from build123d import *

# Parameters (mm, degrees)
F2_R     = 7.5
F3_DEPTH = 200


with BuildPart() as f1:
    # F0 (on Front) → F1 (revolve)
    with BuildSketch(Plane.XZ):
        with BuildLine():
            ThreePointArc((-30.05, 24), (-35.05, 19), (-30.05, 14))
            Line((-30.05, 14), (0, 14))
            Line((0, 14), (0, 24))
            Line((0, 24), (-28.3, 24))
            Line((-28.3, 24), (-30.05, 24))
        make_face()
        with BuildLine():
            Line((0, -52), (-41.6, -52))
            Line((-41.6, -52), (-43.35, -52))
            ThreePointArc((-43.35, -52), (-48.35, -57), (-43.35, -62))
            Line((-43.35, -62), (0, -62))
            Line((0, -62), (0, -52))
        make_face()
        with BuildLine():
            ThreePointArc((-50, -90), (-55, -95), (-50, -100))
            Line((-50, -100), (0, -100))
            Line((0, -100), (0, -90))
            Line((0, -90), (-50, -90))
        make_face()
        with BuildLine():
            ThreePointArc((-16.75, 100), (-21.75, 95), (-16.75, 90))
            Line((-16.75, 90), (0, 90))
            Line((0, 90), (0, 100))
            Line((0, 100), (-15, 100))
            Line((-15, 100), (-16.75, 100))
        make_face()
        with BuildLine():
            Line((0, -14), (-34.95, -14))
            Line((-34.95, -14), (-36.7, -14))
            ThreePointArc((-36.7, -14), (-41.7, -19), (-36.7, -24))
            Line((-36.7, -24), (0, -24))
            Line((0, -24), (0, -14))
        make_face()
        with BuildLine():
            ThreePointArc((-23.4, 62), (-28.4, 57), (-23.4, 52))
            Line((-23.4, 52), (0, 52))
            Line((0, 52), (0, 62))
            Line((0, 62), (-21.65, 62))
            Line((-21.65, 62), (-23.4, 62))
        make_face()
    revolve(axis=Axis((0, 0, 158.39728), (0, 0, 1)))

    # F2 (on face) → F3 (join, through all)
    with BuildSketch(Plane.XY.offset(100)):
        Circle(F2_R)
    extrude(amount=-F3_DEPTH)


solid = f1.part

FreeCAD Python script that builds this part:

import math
import FreeCAD as App
import Part
import Sketcher

V = App.Vector

doc = App.newDocument("Part")
body = doc.addObject("PartDesign::Body", "Body")
body.AllowCompound = True

# Sketch on XZ plane
sketch1 = doc.addObject("Sketcher::SketchObject", "Sketch")
body.addObject(sketch1)
sketch1.AttachmentSupport = (doc.XZ_Plane, [""])
sketch1.MapMode = "FlatFace"
sketch1.addGeometry([
    Part.ArcOfCircle(Part.Circle(V(-30.05, 19, 0), V(0, 0, 1), 5), math.radians(90), math.radians(270)),  # 0
    Part.LineSegment(V(-30.05, 14, 0), V(0, 14, 0)),  # 1
    Part.LineSegment(V(0, 14, 0), V(0, 24, 0)),  # 2
    Part.LineSegment(V(0, 24, 0), V(-30.05, 24, 0)),  # 3
    Part.LineSegment(V(0, -52, 0), V(-43.35, -52, 0)),  # 4
    Part.ArcOfCircle(Part.Circle(V(-43.35, -57, 0), V(0, 0, 1), 5), math.radians(90), math.radians(270)),  # 5
    Part.LineSegment(V(-43.35, -62, 0), V(0, -62, 0)),  # 6
    Part.LineSegment(V(0, -62, 0), V(0, -52, 0)),  # 7
    Part.ArcOfCircle(Part.Circle(V(-50, -95, 0), V(0, 0, 1), 5), math.radians(90), math.radians(270)),  # 8
    Part.LineSegment(V(-50, -100, 0), V(0, -100, 0)),  # 9
    Part.LineSegment(V(0, -100, 0), V(0, -90, 0)),  # 10
    Part.LineSegment(V(0, -90, 0), V(-50, -90, 0)),  # 11
    Part.ArcOfCircle(Part.Circle(V(-16.75, 95, 0), V(0, 0, 1), 5), math.radians(90), math.radians(270)),  # 12
    Part.LineSegment(V(-16.75, 90, 0), V(0, 90, 0)),  # 13
    Part.LineSegment(V(0, 90, 0), V(0, 100, 0)),  # 14
    Part.LineSegment(V(0, 100, 0), V(-16.75, 100, 0)),  # 15
    Part.LineSegment(V(0, -14, 0), V(-36.7, -14, 0)),  # 16
    Part.ArcOfCircle(Part.Circle(V(-36.7, -19, 0), V(0, 0, 1), 5), math.radians(90), math.radians(270)),  # 17
    Part.LineSegment(V(-36.7, -24, 0), V(0, -24, 0)),  # 18
    Part.LineSegment(V(0, -24, 0), V(0, -14, 0)),  # 19
    Part.ArcOfCircle(Part.Circle(V(-23.4, 57, 0), V(0, 0, 1), 5), math.radians(90), math.radians(270)),  # 20
    Part.LineSegment(V(-23.4, 52, 0), V(0, 52, 0)),  # 21
    Part.LineSegment(V(0, 52, 0), V(0, 62, 0)),  # 22
    Part.LineSegment(V(0, 62, 0), V(-23.4, 62, 0)),  # 23
], False)
sketch1.addConstraint([
    Sketcher.Constraint("Tangent", 0, 2, 1, 1),
    Sketcher.Constraint("Coincident", 1, 2, 2, 1),
    Sketcher.Constraint("Coincident", 2, 2, 3, 1),
    Sketcher.Constraint("Tangent", 3, 2, 0, 1),
    Sketcher.Constraint("Tangent", 4, 2, 5, 1),
    Sketcher.Constraint("Tangent", 5, 2, 6, 1),
    Sketcher.Constraint("Coincident", 6, 2, 7, 1),
    Sketcher.Constraint("Coincident", 7, 2, 4, 1),
    Sketcher.Constraint("Tangent", 8, 2, 9, 1),
    Sketcher.Constraint("Coincident", 9, 2, 10, 1),
    Sketcher.Constraint("Coincident", 10, 2, 11, 1),
    Sketcher.Constraint("Tangent", 11, 2, 8, 1),
    Sketcher.Constraint("Tangent", 12, 2, 13, 1),
    Sketcher.Constraint("Coincident", 13, 2, 14, 1),
    Sketcher.Constraint("Coincident", 14, 2, 15, 1),
    Sketcher.Constraint("Tangent", 15, 2, 12, 1),
    Sketcher.Constraint("Tangent", 16, 2, 17, 1),
    Sketcher.Constraint("Tangent", 17, 2, 18, 1),
    Sketcher.Constraint("Coincident", 18, 2, 19, 1),
    Sketcher.Constraint("Coincident", 19, 2, 16, 1),
    Sketcher.Constraint("Tangent", 20, 2, 21, 1),
    Sketcher.Constraint("Coincident", 21, 2, 22, 1),
    Sketcher.Constraint("Coincident", 22, 2, 23, 1),
    Sketcher.Constraint("Tangent", 23, 2, 20, 1),
    Sketcher.Constraint("Horizontal", 1),
    Sketcher.Constraint("Vertical", 2),
    Sketcher.Constraint("Horizontal", 3),
    Sketcher.Constraint("Horizontal", 4),
    Sketcher.Constraint("Horizontal", 6),
    Sketcher.Constraint("Vertical", 7),
    Sketcher.Constraint("Horizontal", 9),
    Sketcher.Constraint("Vertical", 10),
    Sketcher.Constraint("Horizontal", 11),
    Sketcher.Constraint("Horizontal", 13),
    Sketcher.Constraint("Vertical", 14),
    Sketcher.Constraint("Horizontal", 15),
    Sketcher.Constraint("Horizontal", 16),
    Sketcher.Constraint("Horizontal", 18),
    Sketcher.Constraint("Vertical", 19),
    Sketcher.Constraint("Horizontal", 21),
    Sketcher.Constraint("Vertical", 22),
    Sketcher.Constraint("Horizontal", 23),
    Sketcher.Constraint("Equal", 0, 5),
    Sketcher.Constraint("Equal", 5, 8),
    Sketcher.Constraint("Equal", 8, 12),
    Sketcher.Constraint("Equal", 12, 17),
    Sketcher.Constraint("Equal", 17, 20),
    Sketcher.Constraint("Symmetric", 10, 2, 13, 2, -1, 1),
    Sketcher.Constraint("Symmetric", 2, 2, 18, 2, -1, 1),
    Sketcher.Constraint("Symmetric", 7, 2, 21, 2, -1, 1),
    Sketcher.Constraint("PointOnObject", 1, 2, -2),
    Sketcher.Constraint("PointOnObject", 6, 2, -2),
    Sketcher.Constraint("PointOnObject", 9, 2, -2),
    Sketcher.Constraint("Radius", 0, 5.0),
    Sketcher.Constraint("DistanceX", 9, 1, 9, 2, 50.0),
    Sketcher.Constraint("DistanceX", 16, 2, 16, 1, 36.7),
    Sketcher.Constraint("DistanceX", 21, 1, 21, 2, 23.4),
    Sketcher.Constraint("DistanceY", -1, 1, 0, 3, 19.0),
    Sketcher.Constraint("DistanceY", 5, 3, -1, 1, 57.0),
    Sketcher.Constraint("DistanceY", 8, 3, -1, 1, 95.0),
    Sketcher.Constraint("DistanceX", 1, 1, 1, 2, 30.05),
    Sketcher.Constraint("DistanceX", 4, 2, 4, 1, 43.35),
    Sketcher.Constraint("DistanceX", 13, 1, 13, 2, 16.75),
])
revolution = doc.addObject("PartDesign::Revolution", "Revolution")
body.addObject(revolution)
revolution.Profile = sketch1
revolution.ReferenceAxis = (sketch1, ["V_Axis"])
revolution.Angle = 360

# Sketch on XY plane
sketch2 = doc.addObject("Sketcher::SketchObject", "Sketch001")
body.addObject(sketch2)
sketch2.AttachmentSupport = (doc.XY_Plane, [""])
sketch2.MapMode = "FlatFace"
sketch2.AttachmentOffset = App.Placement(V(0, 0, 100), App.Rotation())
sketch2.addGeometry(Part.Circle(V(0, 0, 0), V(0, 0, 1), 7.5), False)
sketch2.addConstraint([
    Sketcher.Constraint("Coincident", 0, 3, -1, 1),
    Sketcher.Constraint("Diameter", 0, 15.0),
])
pad1 = doc.addObject("PartDesign::Pad", "Pad")
body.addObject(pad1)
pad1.Profile = sketch2
pad1.Type = "UpToLast"
pad1.Reversed = True

doc.recompute()
